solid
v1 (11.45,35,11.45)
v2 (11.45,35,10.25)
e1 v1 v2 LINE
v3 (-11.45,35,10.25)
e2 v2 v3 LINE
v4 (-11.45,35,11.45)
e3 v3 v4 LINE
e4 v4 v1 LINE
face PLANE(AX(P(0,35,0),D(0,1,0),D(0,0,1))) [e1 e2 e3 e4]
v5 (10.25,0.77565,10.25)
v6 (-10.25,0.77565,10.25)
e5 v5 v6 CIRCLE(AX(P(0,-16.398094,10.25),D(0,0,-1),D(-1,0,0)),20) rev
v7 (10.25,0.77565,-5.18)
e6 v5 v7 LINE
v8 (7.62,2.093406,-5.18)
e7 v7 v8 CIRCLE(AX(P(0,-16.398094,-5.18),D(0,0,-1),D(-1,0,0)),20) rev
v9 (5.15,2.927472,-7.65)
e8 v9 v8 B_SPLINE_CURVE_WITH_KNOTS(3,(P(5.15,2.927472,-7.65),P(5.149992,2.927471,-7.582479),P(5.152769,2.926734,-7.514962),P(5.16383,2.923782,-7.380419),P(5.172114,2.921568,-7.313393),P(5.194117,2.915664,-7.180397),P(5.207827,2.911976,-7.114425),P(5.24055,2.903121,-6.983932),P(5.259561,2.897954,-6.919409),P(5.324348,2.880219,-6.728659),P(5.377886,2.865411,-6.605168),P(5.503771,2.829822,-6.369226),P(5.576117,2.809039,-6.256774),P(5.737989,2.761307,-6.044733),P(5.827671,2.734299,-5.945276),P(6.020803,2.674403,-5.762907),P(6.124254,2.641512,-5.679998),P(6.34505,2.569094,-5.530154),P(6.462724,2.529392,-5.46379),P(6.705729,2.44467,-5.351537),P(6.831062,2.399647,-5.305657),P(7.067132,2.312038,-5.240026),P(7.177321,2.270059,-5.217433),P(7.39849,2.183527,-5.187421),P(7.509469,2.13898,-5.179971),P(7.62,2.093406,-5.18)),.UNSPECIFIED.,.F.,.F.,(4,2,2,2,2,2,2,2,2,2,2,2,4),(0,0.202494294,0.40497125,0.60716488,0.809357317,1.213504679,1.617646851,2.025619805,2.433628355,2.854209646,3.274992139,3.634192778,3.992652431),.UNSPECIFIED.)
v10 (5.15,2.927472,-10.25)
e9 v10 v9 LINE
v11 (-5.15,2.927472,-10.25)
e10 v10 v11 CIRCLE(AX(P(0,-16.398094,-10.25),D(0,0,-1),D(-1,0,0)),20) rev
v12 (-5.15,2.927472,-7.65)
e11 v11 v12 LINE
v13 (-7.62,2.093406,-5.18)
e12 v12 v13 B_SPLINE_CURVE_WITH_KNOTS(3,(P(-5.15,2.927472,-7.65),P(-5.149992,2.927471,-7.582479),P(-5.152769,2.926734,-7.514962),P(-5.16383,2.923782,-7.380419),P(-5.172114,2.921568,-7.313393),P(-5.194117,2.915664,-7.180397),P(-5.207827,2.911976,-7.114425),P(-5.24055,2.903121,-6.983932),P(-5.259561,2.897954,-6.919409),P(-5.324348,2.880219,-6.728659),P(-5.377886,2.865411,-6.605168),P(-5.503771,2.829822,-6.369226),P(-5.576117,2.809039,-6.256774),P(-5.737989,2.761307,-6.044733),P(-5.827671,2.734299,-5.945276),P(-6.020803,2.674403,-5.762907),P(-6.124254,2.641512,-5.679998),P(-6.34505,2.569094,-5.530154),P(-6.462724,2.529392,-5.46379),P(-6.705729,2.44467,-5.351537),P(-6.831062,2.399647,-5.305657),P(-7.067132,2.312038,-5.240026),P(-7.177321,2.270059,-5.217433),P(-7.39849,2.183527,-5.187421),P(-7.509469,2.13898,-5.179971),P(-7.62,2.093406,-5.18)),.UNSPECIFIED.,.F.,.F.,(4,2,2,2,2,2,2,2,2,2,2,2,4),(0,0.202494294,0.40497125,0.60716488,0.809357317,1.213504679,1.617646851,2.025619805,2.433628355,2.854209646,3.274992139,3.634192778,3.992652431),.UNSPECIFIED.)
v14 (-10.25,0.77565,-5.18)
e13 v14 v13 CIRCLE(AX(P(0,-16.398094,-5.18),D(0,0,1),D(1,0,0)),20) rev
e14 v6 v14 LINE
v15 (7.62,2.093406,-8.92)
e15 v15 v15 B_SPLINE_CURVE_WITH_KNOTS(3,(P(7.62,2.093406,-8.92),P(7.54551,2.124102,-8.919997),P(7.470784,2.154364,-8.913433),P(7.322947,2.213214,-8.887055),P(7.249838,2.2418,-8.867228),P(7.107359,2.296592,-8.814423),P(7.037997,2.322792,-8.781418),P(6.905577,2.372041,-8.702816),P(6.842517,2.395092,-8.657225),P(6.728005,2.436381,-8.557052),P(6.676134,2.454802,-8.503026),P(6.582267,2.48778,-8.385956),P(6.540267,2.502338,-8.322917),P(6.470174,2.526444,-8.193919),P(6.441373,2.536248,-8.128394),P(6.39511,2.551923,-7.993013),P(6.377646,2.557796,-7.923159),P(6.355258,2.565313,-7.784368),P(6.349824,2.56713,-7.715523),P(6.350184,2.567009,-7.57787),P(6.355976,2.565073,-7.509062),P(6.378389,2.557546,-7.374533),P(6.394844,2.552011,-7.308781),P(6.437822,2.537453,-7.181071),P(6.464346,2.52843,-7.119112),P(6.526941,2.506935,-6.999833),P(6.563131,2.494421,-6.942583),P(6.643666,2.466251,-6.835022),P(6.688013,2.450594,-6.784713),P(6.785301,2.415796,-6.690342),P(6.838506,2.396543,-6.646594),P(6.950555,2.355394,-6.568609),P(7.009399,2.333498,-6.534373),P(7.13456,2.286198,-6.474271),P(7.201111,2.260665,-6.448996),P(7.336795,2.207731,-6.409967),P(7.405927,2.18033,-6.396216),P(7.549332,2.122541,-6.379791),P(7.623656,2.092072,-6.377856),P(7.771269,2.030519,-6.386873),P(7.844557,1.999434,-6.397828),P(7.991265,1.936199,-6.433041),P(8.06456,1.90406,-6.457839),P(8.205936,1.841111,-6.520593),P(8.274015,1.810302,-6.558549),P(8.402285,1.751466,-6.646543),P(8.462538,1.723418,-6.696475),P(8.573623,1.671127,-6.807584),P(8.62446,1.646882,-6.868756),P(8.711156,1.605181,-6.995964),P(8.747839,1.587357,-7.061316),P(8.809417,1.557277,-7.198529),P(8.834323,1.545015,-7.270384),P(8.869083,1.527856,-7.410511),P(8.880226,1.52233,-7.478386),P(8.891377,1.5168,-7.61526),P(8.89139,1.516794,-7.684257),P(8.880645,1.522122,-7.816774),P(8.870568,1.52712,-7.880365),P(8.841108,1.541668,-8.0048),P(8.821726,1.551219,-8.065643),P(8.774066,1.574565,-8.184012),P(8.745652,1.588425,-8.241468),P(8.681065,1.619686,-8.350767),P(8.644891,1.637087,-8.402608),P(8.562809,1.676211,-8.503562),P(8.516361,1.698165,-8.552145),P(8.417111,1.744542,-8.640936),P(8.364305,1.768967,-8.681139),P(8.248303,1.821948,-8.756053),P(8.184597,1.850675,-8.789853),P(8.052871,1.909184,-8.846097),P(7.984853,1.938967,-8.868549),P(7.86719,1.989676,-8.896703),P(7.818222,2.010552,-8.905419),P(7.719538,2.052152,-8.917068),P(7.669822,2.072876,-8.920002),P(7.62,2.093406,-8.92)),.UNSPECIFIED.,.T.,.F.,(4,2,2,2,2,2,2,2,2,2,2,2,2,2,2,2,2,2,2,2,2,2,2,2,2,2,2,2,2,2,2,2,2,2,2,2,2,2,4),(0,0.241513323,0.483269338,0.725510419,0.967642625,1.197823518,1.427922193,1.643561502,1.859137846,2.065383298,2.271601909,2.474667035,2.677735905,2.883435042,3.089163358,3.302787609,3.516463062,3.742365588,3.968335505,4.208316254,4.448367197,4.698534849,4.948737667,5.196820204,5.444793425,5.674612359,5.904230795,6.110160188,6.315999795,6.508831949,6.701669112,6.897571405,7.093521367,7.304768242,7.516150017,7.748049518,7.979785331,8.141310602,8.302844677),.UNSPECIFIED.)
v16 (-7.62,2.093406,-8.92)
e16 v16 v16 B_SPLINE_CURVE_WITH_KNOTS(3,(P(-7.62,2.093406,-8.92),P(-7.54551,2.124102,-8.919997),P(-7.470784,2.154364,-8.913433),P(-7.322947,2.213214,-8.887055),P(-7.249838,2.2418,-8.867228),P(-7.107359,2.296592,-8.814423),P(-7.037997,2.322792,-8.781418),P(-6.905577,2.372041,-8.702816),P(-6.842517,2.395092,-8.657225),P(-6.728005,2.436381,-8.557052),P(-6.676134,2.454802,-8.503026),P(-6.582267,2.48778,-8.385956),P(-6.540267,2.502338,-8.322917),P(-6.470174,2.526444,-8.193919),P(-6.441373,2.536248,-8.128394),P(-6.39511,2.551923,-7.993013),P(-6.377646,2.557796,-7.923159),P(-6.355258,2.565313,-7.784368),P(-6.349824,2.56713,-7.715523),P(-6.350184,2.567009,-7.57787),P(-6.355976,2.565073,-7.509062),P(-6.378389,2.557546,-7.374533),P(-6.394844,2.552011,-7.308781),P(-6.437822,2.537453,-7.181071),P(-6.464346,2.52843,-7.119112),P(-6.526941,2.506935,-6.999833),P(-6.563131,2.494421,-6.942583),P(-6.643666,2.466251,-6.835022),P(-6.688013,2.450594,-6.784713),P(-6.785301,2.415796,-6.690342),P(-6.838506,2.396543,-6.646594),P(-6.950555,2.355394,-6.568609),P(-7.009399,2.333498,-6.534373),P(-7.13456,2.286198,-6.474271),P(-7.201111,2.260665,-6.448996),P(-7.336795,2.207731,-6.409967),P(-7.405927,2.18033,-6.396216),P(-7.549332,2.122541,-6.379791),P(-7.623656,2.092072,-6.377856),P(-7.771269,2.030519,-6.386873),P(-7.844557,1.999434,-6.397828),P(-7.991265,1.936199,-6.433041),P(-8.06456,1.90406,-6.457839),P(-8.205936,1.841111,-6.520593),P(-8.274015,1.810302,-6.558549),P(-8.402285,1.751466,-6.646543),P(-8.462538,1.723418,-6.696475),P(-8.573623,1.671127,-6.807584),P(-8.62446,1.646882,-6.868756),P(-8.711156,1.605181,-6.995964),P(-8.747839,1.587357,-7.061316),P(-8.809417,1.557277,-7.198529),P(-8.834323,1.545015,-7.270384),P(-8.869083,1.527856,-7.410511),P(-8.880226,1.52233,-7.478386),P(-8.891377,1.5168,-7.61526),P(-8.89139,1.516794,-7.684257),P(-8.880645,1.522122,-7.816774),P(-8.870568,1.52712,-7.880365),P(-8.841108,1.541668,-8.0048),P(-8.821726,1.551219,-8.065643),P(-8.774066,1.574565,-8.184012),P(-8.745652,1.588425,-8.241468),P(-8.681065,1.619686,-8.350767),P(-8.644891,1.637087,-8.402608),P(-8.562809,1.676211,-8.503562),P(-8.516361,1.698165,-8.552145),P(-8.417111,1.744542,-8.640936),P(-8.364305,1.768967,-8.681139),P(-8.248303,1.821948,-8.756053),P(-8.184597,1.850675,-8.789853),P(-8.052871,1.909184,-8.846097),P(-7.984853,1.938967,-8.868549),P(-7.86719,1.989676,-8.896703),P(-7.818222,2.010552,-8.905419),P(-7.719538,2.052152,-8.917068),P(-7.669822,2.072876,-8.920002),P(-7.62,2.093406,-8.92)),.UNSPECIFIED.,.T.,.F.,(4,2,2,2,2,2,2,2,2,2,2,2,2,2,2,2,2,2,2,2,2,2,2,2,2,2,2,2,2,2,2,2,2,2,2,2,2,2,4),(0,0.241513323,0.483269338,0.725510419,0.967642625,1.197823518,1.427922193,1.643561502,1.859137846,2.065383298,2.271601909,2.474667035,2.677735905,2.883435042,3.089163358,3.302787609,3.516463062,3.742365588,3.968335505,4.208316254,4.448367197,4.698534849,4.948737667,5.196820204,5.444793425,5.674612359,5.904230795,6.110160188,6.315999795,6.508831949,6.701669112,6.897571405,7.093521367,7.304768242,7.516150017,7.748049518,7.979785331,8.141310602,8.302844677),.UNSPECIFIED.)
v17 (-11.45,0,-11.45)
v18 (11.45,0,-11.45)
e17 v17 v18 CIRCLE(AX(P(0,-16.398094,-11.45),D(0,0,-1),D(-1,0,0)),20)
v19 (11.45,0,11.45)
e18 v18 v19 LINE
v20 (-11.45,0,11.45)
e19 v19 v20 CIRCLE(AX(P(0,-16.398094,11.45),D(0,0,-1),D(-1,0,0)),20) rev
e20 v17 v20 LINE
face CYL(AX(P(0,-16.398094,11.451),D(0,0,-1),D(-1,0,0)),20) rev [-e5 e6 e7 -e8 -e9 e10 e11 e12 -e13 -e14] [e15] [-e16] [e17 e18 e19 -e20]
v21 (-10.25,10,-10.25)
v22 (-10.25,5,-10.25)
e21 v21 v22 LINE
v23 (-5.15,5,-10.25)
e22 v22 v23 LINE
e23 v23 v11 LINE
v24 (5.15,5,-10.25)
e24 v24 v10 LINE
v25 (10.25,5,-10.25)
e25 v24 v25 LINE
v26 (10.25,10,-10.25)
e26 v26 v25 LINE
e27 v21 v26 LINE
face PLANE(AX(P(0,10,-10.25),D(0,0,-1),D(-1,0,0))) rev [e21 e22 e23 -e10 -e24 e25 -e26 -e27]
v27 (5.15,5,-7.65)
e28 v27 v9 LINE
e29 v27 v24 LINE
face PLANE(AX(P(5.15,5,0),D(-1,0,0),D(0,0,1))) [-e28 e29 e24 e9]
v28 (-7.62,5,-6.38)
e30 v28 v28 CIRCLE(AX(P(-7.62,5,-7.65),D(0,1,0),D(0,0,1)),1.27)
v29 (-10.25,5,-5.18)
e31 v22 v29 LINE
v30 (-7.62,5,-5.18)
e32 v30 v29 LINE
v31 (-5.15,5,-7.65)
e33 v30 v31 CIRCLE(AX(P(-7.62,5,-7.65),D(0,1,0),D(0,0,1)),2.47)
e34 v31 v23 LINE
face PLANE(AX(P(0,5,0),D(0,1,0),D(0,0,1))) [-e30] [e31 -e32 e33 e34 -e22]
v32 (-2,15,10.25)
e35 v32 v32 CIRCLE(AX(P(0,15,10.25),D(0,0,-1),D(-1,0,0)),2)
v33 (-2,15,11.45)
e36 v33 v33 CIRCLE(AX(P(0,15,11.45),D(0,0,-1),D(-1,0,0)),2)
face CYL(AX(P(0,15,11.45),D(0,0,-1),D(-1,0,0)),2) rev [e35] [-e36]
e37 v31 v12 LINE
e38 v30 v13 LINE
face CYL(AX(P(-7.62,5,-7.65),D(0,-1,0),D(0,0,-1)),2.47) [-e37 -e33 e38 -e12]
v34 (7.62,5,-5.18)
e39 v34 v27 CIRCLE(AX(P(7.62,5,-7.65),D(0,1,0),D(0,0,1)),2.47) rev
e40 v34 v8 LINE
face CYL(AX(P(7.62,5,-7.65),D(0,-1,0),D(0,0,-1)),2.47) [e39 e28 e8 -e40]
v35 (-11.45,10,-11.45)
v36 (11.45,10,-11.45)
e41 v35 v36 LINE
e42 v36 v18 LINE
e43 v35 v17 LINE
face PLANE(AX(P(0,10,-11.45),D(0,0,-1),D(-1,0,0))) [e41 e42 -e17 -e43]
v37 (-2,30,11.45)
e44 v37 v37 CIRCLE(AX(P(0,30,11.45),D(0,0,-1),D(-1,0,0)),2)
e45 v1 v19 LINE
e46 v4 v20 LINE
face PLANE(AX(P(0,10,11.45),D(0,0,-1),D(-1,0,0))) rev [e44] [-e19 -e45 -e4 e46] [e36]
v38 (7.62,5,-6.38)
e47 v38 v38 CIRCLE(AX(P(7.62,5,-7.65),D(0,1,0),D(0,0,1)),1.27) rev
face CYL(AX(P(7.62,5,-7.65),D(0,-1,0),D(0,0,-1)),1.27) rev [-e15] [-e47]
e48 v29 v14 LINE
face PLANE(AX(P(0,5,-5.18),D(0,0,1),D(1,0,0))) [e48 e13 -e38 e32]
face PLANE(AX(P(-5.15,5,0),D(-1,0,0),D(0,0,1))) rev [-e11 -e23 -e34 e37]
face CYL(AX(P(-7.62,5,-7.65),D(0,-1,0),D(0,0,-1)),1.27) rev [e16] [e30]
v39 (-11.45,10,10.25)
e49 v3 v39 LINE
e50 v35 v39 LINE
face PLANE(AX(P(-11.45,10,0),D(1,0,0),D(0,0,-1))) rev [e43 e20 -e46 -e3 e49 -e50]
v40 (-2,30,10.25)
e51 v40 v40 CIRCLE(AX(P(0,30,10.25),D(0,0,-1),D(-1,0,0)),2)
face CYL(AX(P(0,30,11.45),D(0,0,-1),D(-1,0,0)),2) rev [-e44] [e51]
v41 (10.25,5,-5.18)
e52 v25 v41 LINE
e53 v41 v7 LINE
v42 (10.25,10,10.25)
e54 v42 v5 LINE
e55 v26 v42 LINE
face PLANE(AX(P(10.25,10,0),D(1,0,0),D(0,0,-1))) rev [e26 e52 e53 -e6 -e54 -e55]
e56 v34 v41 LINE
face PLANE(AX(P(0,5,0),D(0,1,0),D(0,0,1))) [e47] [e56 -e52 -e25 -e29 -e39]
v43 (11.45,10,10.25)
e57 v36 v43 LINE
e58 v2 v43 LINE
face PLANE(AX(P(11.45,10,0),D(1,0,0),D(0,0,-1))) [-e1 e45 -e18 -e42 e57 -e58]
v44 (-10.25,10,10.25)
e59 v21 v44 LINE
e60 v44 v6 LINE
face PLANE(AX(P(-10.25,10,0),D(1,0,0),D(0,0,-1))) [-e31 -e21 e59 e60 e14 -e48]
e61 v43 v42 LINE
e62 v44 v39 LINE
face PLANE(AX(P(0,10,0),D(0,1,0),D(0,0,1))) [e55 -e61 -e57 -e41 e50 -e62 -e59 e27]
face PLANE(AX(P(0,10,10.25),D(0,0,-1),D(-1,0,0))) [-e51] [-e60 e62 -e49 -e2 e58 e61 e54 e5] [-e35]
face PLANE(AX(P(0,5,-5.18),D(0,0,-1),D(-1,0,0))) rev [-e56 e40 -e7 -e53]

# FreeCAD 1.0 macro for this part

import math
import FreeCAD as App
import Part
import Sketcher

doc = App.newDocument("Part")
body = doc.addObject("PartDesign::Body", "Body")

# Sketch on XZ plane
sketch1 = doc.addObject("Sketcher::SketchObject", "Sketch")
body.addObject(sketch1)
sketch1.AttachmentSupport = (doc.XZ_Plane, [""])
sketch1.MapMode = "FlatFace"
sketch1.addGeometry([
    Part.LineSegment(App.Vector(-11.45, 11.45, 0), App.Vector(11.45, 11.45, 0)),  # 0
    Part.LineSegment(App.Vector(11.45, 11.45, 0), App.Vector(11.45, -11.45, 0)),  # 1
    Part.LineSegment(App.Vector(11.45, -11.45, 0), App.Vector(-11.45, -11.45, 0)),  # 2
    Part.LineSegment(App.Vector(-11.45, -11.45, 0), App.Vector(-11.45, 11.45, 0)),  # 3
    Part.LineSegment(App.Vector(10.25, 10.25, 0), App.Vector(-10.25, 10.25, 0)),  # 4
    Part.LineSegment(App.Vector(-10.25, 10.25, 0), App.Vector(-10.25, -10.25, 0)),  # 5
    Part.LineSegment(App.Vector(-10.25, -10.25, 0), App.Vector(10.25, -10.25, 0)),  # 6
    Part.LineSegment(App.Vector(10.25, -10.25, 0), App.Vector(10.25, 10.25, 0)),  # 7
], False)
sketch1.addConstraint([
    Sketcher.Constraint("Coincident", 0, 2, 1, 1),
    Sketcher.Constraint("Coincident", 1, 2, 2, 1),
    Sketcher.Constraint("Coincident", 2, 2, 3, 1),
    Sketcher.Constraint("Coincident", 3, 2, 0, 1),
    Sketcher.Constraint("Coincident", 4, 2, 5, 1),
    Sketcher.Constraint("Coincident", 5, 2, 6, 1),
    Sketcher.Constraint("Coincident", 6, 2, 7, 1),
    Sketcher.Constraint("Coincident", 7, 2, 4, 1),
    Sketcher.Constraint("Horizontal", 0),
    Sketcher.Constraint("Vertical", 1),
    Sketcher.Constraint("Horizontal", 2),
    Sketcher.Constraint("Vertical", 3),
    Sketcher.Constraint("Horizontal", 4),
    Sketcher.Constraint("Vertical", 5),
    Sketcher.Constraint("Horizontal", 6),
    Sketcher.Constraint("Vertical", 7),
    Sketcher.Constraint("Symmetric", 0, 2, 2, 2, -1, 1),
    Sketcher.Constraint("Symmetric", 4, 2, 6, 2, -1, 1),
    Sketcher.Constraint("Equal", 2, 1),
    Sketcher.Constraint("Equal", 6, 5),
    Sketcher.Constraint("DistanceX", 0, 1, 0, 2, 22.9),
    Sketcher.Constraint("DistanceX", 4, 2, 4, 1, 20.5),
])
pad1 = doc.addObject("PartDesign::Pad", "Pad")
body.addObject(pad1)
pad1.Profile = sketch1
pad1.Length = 10
pad1.Reversed = True

# Sketch on XZ plane
sketch2 = doc.addObject("Sketcher::SketchObject", "Sketch001")
body.addObject(sketch2)
sketch2.AttachmentSupport = (doc.XZ_Plane, [""])
sketch2.MapMode = "FlatFace"
sketch2.addGeometry([
    Part.LineSegment(App.Vector(-5.15, -10.25, 0), App.Vector(-10.25, -10.25, 0)),  # 0
    Part.LineSegment(App.Vector(-10.25, -10.25, 0), App.Vector(-10.25, -5.18, 0)),  # 1
    Part.LineSegment(App.Vector(-10.25, -5.18, 0), App.Vector(-7.62, -5.18, 0)),  # 2
    Part.ArcOfCircle(Part.Circle(App.Vector(-7.62, -7.65, 0), App.Vector(0, 0, 1), 2.47), math.radians(0), math.radians(90)),  # 3
    Part.LineSegment(App.Vector(-5.15, -7.65, 0), App.Vector(-5.15, -10.25, 0)),  # 4
    Part.Circle(App.Vector(-7.62, -7.65, 0), App.Vector(0, 0, 1), 1.27),  # 5
    Part.LineSegment(App.Vector(10.25, -10.25, 0), App.Vector(5.15, -10.25, 0)),  # 6
    Part.LineSegment(App.Vector(5.15, -10.25, 0), App.Vector(5.15, -7.65, 0)),  # 7
    Part.ArcOfCircle(Part.Circle(App.Vector(7.62, -7.65, 0), App.Vector(0, 0, 1), 2.47), math.radians(90), math.radians(180)),  # 8
    Part.LineSegment(App.Vector(7.62, -5.18, 0), App.Vector(10.25, -5.18, 0)),  # 9
    Part.LineSegment(App.Vector(10.25, -5.18, 0), App.Vector(10.25, -10.25, 0)),  # 10
    Part.Circle(App.Vector(7.62, -7.65, 0), App.Vector(0, 0, 1), 1.27),  # 11
], False)
sketch2.addConstraint([
    Sketcher.Constraint("Coincident", 0, 2, 1, 1),
    Sketcher.Constraint("Coincident", 1, 2, 2, 1),
    Sketcher.Constraint("Tangent", 2, 2, 3, 2),
    Sketcher.Constraint("Tangent", 3, 1, 4, 1),
    Sketcher.Constraint("Coincident", 4, 2, 0, 1),
    Sketcher.Constraint("Coincident", 6, 2, 7, 1),
    Sketcher.Constraint("Tangent", 7, 2, 8, 2),
    Sketcher.Constraint("Tangent", 8, 1, 9, 1),
    Sketcher.Constraint("Coincident", 9, 2, 10, 1),
    Sketcher.Constraint("Coincident", 10, 2, 6, 1),
    Sketcher.Constraint("Horizontal", 0),
    Sketcher.Constraint("Vertical", 1),
    Sketcher.Constraint("Horizontal", 2),
    Sketcher.Constraint("Vertical", 4),
    Sketcher.Constraint("Horizontal", 6),
    Sketcher.Constraint("Vertical", 7),
    Sketcher.Constraint("Horizontal", 9),
    Sketcher.Constraint("Vertical", 10),
    Sketcher.Constraint("Coincident", 5, 3, 3, 3),
    Sketcher.Constraint("Coincident", 11, 3, 8, 3),
    Sketcher.Constraint("Equal", 3, 8),
    Sketcher.Constraint("Equal", 5, 11),
    Sketcher.Constraint("Symmetric", 3, 3, 8, 3, -2),
    Sketcher.Constraint("Symmetric", 0, 2, 10, 2, -2),
    Sketcher.Constraint("Diameter", 5, 2.54),
    Sketcher.Constraint("Radius", 3, 2.47),
    Sketcher.Constraint("DistanceX", 0, 2, 0, 1, 5.1),
    Sketcher.Constraint("DistanceY", 4, 2, 4, 1, 2.6),
    Sketcher.Constraint("DistanceX", 4, 2, 6, 2, 10.3),
    Sketcher.Constraint("DistanceY", 3, 3, -1, 1, 7.65),
])
pad2 = doc.addObject("PartDesign::Pad", "Pad001")
body.addObject(pad2)
pad2.Profile = sketch2
pad2.Length = 5
pad2.Reversed = True

# Sketch on XZ plane
sketch3 = doc.addObject("Sketcher::SketchObject", "Sketch002")
body.addObject(sketch3)
sketch3.AttachmentSupport = (doc.XZ_Plane, [""])
sketch3.MapMode = "FlatFace"
sketch3.addGeometry([
    Part.LineSegment(App.Vector(-11.45, 10.25, 0), App.Vector(-11.45, 11.45, 0)),
    Part.LineSegment(App.Vector(-11.45, 11.45, 0), App.Vector(11.45, 11.45, 0)),
    Part.LineSegment(App.Vector(11.45, 11.45, 0), App.Vector(11.45, 10.25, 0)),
    Part.LineSegment(App.Vector(11.45, 10.25, 0), App.Vector(-11.45, 10.25, 0)),
], False)
sketch3.addConstraint([
    Sketcher.Constraint("Coincident", 0, 2, 1, 1),
    Sketcher.Constraint("Coincident", 1, 2, 2, 1),
    Sketcher.Constraint("Coincident", 2, 2, 3, 1),
    Sketcher.Constraint("Coincident", 3, 2, 0, 1),
    Sketcher.Constraint("Vertical", 0),
    Sketcher.Constraint("Horizontal", 1),
    Sketcher.Constraint("Vertical", 2),
    Sketcher.Constraint("Horizontal", 3),
    Sketcher.Constraint("DistanceX", 1, 1, 1, 2, 22.9),
    Sketcher.Constraint("DistanceY", 0, 1, 0, 2, 1.2),
    Sketcher.Constraint("DistanceX", 0, 2, -1, 1, 11.45),
    Sketcher.Constraint("DistanceY", -1, 1, 0, 2, 11.45),
])
pad3 = doc.addObject("PartDesign::Pad", "Pad002")
body.addObject(pad3)
pad3.Profile = sketch3
pad3.Length = 10
pad3.Reversed = True

# Sketch on XZ plane
sketch4 = doc.addObject("Sketcher::SketchObject", "Sketch003")
body.addObject(sketch4)
sketch4.AttachmentSupport = (doc.XZ_Plane, [""])
sketch4.MapMode = "FlatFace"
sketch4.AttachmentOffset = App.Placement(App.Vector(0, 0, -10), App.Rotation())
sketch4.addGeometry([
    Part.LineSegment(App.Vector(-11.45, 10.25, 0), App.Vector(-11.45, 11.45, 0)),
    Part.LineSegment(App.Vector(-11.45, 11.45, 0), App.Vector(11.45, 11.45, 0)),
    Part.LineSegment(App.Vector(11.45, 11.45, 0), App.Vector(11.45, 10.25, 0)),
    Part.LineSegment(App.Vector(11.45, 10.25, 0), App.Vector(-11.45, 10.25, 0)),
], False)
sketch4.addConstraint([
    Sketcher.Constraint("Coincident", 0, 2, 1, 1),
    Sketcher.Constraint("Coincident", 1, 2, 2, 1),
    Sketcher.Constraint("Coincident", 2, 2, 3, 1),
    Sketcher.Constraint("Coincident", 3, 2, 0, 1),
    Sketcher.Constraint("Vertical", 0),
    Sketcher.Constraint("Horizontal", 1),
    Sketcher.Constraint("Vertical", 2),
    Sketcher.Constraint("Horizontal", 3),
    Sketcher.Constraint("DistanceX", 1, 1, 1, 2, 22.9),
    Sketcher.Constraint("DistanceY", 0, 1, 0, 2, 1.2),
    Sketcher.Constraint("DistanceX", 0, 2, -1, 1, 11.45),
    Sketcher.Constraint("DistanceY", -1, 1, 0, 2, 11.45),
])
pad4 = doc.addObject("PartDesign::Pad", "Pad003")
body.addObject(pad4)
pad4.Profile = sketch4
pad4.Length = 25
pad4.Reversed = True

# Sketch on XY plane
sketch5 = doc.addObject("Sketcher::SketchObject", "Sketch004")
body.addObject(sketch5)
sketch5.AttachmentSupport = (doc.XY_Plane, [""])
sketch5.MapMode = "FlatFace"
sketch5.AttachmentOffset = App.Placement(App.Vector(0, 0, -11.45), App.Rotation())
sketch5.addGeometry(Part.Circle(App.Vector(0, -16.398094, 0), App.Vector(0, 0, 1), 20), False)
sketch5.addConstraint([
    Sketcher.Constraint("PointOnObject", 0, 3, -2),
    Sketcher.Constraint("Diameter", 0, 40.0),
    Sketcher.Constraint("DistanceY", 0, 3, -1, 1, 16.398094),
])
pocket1 = doc.addObject("PartDesign::Pocket", "Pocket")
body.addObject(pocket1)
pocket1.Profile = sketch5
pocket1.Length = 22.9
pocket1.Reversed = True

# Sketch on XY plane
sketch6 = doc.addObject("Sketcher::SketchObject", "Sketch005")
body.addObject(sketch6)
sketch6.AttachmentSupport = (doc.XY_Plane, [""])
sketch6.MapMode = "FlatFace"
sketch6.AttachmentOffset = App.Placement(App.Vector(0, 0, 10.25), App.Rotation())
sketch6.addGeometry([
    Part.Circle(App.Vector(0, 15, 0), App.Vector(0, 0, 1), 2),
    Part.Circle(App.Vector(0, 30, 0), App.Vector(0, 0, 1), 2),
], False)
sketch6.addConstraint([
    Sketcher.Constraint("Equal", 0, 1),
    Sketcher.Constraint("PointOnObject", 0, 3, -2),
    Sketcher.Constraint("PointOnObject", 1, 3, -2),
    Sketcher.Constraint("Diameter", 0, 4.0),
    Sketcher.Constraint("DistanceY", -1, 1, 0, 3, 15.0),
    Sketcher.Constraint("DistanceY", -1, 1, 1, 3, 30.0),
])
pocket2 = doc.addObject("PartDesign::Pocket", "Pocket001")
body.addObject(pocket2)
pocket2.Profile = sketch6
pocket2.Type = "ThroughAll"
pocket2.Reversed = True

doc.recompute()
